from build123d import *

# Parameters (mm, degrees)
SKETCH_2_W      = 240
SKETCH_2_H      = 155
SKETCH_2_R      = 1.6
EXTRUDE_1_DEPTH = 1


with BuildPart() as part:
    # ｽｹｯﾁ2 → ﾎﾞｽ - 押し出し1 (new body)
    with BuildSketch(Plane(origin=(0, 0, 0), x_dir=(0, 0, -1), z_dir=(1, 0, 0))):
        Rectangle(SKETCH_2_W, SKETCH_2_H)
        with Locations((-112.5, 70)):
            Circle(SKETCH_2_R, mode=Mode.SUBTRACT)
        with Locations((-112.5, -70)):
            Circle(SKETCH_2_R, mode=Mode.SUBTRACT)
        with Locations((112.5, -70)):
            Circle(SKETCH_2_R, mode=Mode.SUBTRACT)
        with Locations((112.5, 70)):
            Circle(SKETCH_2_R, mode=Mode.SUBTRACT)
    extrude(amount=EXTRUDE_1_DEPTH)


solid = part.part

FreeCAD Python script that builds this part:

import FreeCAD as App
import Part
import Sketcher

V = App.Vector
Q = App.Units.Quantity


def add_polygon(sketch, points):
    """Adds a closed chain of lines whose ends are joined by coincident constraints."""
    first, n = sketch.GeometryCount, len(points)
    for a, b in zip(points, points[1:] + points[:1]):
        sketch.addGeometry(Part.LineSegment(App.Vector(*a, 0), App.Vector(*b, 0)), False)
    for i in range(n):
        sketch.addConstraint(Sketcher.Constraint("Coincident", first + i, 2, first + (i + 1) % n, 1))

doc = App.newDocument("Part")
body = doc.addObject("PartDesign::Body", "Body")

sketch1 = body.newObject("Sketcher::SketchObject", "Sketch")
sketch1.AttachmentSupport = (doc.getObject("YZ_Plane"), [""])
sketch1.MapMode = "FlatFace"
add_polygon(sketch1, [(77.5, 120), (-77.5, 120), (-77.5, -120), (77.5, -120)])
sketch1.addGeometry(Part.Circle(V(-70, 112.5, 0), V(0, 0, 1), 1.6), False)
sketch1.addGeometry(Part.Circle(V(-70, -112.5, 0), V(0, 0, 1), 1.6), False)
sketch1.addGeometry(Part.Circle(V(70, 112.5, 0), V(0, 0, 1), 1.6), False)
sketch1.addGeometry(Part.Circle(V(70, -112.5, 0), V(0, 0, 1), 1.6), False)
sketch1.addConstraint([
    Sketcher.Constraint("Horizontal", 0),
    Sketcher.Constraint("Vertical", 1),
    Sketcher.Constraint("Horizontal", 2),
    Sketcher.Constraint("Vertical", 3),
    Sketcher.Constraint("Equal", 4, 5),
    Sketcher.Constraint("Equal", 5, 6),
    Sketcher.Constraint("Equal", 6, 7),
    Sketcher.Constraint("Symmetric", 5, 3, 6, 3, -1, 1),
    Sketcher.Constraint("Symmetric", 4, 3, 7, 3, -1, 1),
    Sketcher.Constraint("Symmetric", 0, 2, 2, 2, -1, 1),
    Sketcher.Constraint("Symmetric", 4, 3, 6, 3, -2),
    Sketcher.Constraint("Diameter", 4, Q("3.2 mm")),
    Sketcher.Constraint("DistanceX", 0, 2, 0, 1, Q("155 mm")),
    Sketcher.Constraint("DistanceY", 1, 2, 1, 1, Q("240 mm")),
    Sketcher.Constraint("DistanceX", 4, 3, -1, 1, Q("70 mm")),
    Sketcher.Constraint("DistanceY", 5, 3, 4, 3, Q("225 mm")),
])
pad1 = body.newObject("PartDesign::Pad", "Pad")
pad1.Profile = sketch1
pad1.Length = 1

doc.recompute()
